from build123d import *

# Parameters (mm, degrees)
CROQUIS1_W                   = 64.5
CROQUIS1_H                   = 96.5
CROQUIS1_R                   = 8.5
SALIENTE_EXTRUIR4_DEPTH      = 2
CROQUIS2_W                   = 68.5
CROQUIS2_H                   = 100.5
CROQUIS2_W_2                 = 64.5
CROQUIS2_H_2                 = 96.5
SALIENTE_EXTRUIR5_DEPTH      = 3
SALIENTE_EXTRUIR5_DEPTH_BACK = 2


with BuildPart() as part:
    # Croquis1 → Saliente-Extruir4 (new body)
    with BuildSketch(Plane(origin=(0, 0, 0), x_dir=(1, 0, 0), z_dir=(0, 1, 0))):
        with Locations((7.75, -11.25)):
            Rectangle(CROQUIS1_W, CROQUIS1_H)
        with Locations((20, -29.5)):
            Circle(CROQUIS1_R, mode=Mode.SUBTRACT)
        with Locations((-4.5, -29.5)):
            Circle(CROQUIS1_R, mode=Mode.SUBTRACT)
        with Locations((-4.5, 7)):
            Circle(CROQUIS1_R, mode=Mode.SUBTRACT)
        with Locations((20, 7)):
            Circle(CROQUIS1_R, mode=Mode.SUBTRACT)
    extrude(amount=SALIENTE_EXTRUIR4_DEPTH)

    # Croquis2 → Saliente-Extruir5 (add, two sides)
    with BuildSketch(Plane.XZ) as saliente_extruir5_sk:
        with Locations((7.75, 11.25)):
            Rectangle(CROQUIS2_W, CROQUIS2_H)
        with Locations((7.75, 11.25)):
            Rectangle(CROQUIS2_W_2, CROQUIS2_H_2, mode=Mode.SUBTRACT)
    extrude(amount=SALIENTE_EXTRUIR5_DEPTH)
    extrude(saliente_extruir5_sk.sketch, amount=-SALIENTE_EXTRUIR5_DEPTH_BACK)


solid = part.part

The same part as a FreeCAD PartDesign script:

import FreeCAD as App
import Part
import Sketcher


def add_polygon(sketch, points):
    """Adds a closed chain of lines whose ends are joined by coincident constraints."""
    first, n = sketch.GeometryCount, len(points)
    for a, b in zip(points, points[1:] + points[:1]):
        sketch.addGeometry(Part.LineSegment(App.Vector(*a, 0), App.Vector(*b, 0)), False)
    for i in range(n):
        sketch.addConstraint(Sketcher.Constraint("Coincident", first + i, 2, first + (i + 1) % n, 1))

doc = App.newDocument("Part")
body = doc.addObject("PartDesign::Body", "Body")

# Sketch on XZ plane
sketch1 = body.newObject("Sketcher::SketchObject", "Sketch")
sketch1.AttachmentSupport = (doc.getObject("XZ_Plane"), [""])
sketch1.MapMode = "FlatFace"
add_polygon(sketch1, [(-24.5, -37), (-24.5, 59.5), (40, 59.5), (40, -37)])  # lines 0-3
sketch1.addGeometry(Part.Circle(App.Vector(-4.5, 29.5, 0), App.Vector(0, 0, 1), 8.5), False)  # 4
sketch1.addGeometry(Part.Circle(App.Vector(20, 29.5, 0), App.Vector(0, 0, 1), 8.5), False)  # 5
sketch1.addGeometry(Part.Circle(App.Vector(-4.5, -7, 0), App.Vector(0, 0, 1), 8.5), False)  # 6
sketch1.addGeometry(Part.Circle(App.Vector(20, -7, 0), App.Vector(0, 0, 1), 8.5), False)  # 7
sketch1.addConstraint([
    Sketcher.Constraint("Vertical", 0),
    Sketcher.Constraint("Horizontal", 1),
    Sketcher.Constraint("Vertical", 2),
    Sketcher.Constraint("Horizontal", 3),
    Sketcher.Constraint("Equal", 4, 5),
    Sketcher.Constraint("Equal", 5, 6),
    Sketcher.Constraint("Equal", 6, 7),
    Sketcher.Constraint("Horizontal", 4, 3, 5, 3),
    Sketcher.Constraint("Horizontal", 6, 3, 7, 3),
    Sketcher.Constraint("Vertical", 4, 3, 6, 3),
    Sketcher.Constraint("Vertical", 5, 3, 7, 3),
    Sketcher.Constraint("Diameter", 4, 17.0),
    Sketcher.Constraint("DistanceX", 1, 1, 1, 2, 64.5),
    Sketcher.Constraint("DistanceY", 0, 1, 0, 2, 96.5),
    Sketcher.Constraint("DistanceX", -1, 1, 5, 3, 20.0),
    Sketcher.Constraint("DistanceY", 6, 3, -1, 1, 7.0),
    Sketcher.Constraint("DistanceX", -1, 1, 1, 2, 40.0),
    Sketcher.Constraint("DistanceY", 2, 2, -1, 1, 37.0),
    Sketcher.Constraint("DistanceX", 0, 2, 4, 3, 20.0),
    Sketcher.Constraint("DistanceY", 4, 3, 0, 2, 30.0),
])
pad1 = body.newObject("PartDesign::Pad", "Pad")
pad1.Profile = sketch1
pad1.Length = 2
pad1.Reversed = True

# Sketch on XZ plane
sketch2 = body.newObject("Sketcher::SketchObject", "Sketch001")
sketch2.AttachmentSupport = (doc.getObject("XZ_Plane"), [""])
sketch2.MapMode = "FlatFace"
add_polygon(sketch2, [(-26.5, 61.5), (-26.5, -39), (42, -39), (42, 61.5)])  # lines 0-3
add_polygon(sketch2, [(40, -37), (-24.5, -37), (-24.5, 59.5), (40, 59.5)])  # lines 4-7
sketch2.addConstraint([
    Sketcher.Constraint("Vertical", 0),
    Sketcher.Constraint("Horizontal", 1),
    Sketcher.Constraint("Vertical", 2),
    Sketcher.Constraint("Horizontal", 3),
    Sketcher.Constraint("Horizontal", 4),
    Sketcher.Constraint("Vertical", 5),
    Sketcher.Constraint("Horizontal", 6),
    Sketcher.Constraint("Vertical", 7),
    Sketcher.Constraint("DistanceX", 1, 1, 1, 2, 68.5),
    Sketcher.Constraint("DistanceX", 4, 2, 4, 1, 64.5),
    Sketcher.Constraint("DistanceY", 0, 2, 0, 1, 100.5),
    Sketcher.Constraint("DistanceY", 5, 1, 5, 2, 96.5),
    Sketcher.Constraint("DistanceY", 0, 2, -1, 1, 39.0),
    Sketcher.Constraint("DistanceX", -1, 1, 1, 2, 42.0),
    Sketcher.Constraint("DistanceY", 4, 2, -1, 1, 37.0),
    Sketcher.Constraint("DistanceX", -1, 1, 6, 2, 40.0),
])
pad2 = body.newObject("PartDesign::Pad", "Pad001")
pad2.Profile = sketch2
pad2.Type = "TwoLengths"
pad2.Length = 3
pad2.Length2 = 2

doc.recompute()
